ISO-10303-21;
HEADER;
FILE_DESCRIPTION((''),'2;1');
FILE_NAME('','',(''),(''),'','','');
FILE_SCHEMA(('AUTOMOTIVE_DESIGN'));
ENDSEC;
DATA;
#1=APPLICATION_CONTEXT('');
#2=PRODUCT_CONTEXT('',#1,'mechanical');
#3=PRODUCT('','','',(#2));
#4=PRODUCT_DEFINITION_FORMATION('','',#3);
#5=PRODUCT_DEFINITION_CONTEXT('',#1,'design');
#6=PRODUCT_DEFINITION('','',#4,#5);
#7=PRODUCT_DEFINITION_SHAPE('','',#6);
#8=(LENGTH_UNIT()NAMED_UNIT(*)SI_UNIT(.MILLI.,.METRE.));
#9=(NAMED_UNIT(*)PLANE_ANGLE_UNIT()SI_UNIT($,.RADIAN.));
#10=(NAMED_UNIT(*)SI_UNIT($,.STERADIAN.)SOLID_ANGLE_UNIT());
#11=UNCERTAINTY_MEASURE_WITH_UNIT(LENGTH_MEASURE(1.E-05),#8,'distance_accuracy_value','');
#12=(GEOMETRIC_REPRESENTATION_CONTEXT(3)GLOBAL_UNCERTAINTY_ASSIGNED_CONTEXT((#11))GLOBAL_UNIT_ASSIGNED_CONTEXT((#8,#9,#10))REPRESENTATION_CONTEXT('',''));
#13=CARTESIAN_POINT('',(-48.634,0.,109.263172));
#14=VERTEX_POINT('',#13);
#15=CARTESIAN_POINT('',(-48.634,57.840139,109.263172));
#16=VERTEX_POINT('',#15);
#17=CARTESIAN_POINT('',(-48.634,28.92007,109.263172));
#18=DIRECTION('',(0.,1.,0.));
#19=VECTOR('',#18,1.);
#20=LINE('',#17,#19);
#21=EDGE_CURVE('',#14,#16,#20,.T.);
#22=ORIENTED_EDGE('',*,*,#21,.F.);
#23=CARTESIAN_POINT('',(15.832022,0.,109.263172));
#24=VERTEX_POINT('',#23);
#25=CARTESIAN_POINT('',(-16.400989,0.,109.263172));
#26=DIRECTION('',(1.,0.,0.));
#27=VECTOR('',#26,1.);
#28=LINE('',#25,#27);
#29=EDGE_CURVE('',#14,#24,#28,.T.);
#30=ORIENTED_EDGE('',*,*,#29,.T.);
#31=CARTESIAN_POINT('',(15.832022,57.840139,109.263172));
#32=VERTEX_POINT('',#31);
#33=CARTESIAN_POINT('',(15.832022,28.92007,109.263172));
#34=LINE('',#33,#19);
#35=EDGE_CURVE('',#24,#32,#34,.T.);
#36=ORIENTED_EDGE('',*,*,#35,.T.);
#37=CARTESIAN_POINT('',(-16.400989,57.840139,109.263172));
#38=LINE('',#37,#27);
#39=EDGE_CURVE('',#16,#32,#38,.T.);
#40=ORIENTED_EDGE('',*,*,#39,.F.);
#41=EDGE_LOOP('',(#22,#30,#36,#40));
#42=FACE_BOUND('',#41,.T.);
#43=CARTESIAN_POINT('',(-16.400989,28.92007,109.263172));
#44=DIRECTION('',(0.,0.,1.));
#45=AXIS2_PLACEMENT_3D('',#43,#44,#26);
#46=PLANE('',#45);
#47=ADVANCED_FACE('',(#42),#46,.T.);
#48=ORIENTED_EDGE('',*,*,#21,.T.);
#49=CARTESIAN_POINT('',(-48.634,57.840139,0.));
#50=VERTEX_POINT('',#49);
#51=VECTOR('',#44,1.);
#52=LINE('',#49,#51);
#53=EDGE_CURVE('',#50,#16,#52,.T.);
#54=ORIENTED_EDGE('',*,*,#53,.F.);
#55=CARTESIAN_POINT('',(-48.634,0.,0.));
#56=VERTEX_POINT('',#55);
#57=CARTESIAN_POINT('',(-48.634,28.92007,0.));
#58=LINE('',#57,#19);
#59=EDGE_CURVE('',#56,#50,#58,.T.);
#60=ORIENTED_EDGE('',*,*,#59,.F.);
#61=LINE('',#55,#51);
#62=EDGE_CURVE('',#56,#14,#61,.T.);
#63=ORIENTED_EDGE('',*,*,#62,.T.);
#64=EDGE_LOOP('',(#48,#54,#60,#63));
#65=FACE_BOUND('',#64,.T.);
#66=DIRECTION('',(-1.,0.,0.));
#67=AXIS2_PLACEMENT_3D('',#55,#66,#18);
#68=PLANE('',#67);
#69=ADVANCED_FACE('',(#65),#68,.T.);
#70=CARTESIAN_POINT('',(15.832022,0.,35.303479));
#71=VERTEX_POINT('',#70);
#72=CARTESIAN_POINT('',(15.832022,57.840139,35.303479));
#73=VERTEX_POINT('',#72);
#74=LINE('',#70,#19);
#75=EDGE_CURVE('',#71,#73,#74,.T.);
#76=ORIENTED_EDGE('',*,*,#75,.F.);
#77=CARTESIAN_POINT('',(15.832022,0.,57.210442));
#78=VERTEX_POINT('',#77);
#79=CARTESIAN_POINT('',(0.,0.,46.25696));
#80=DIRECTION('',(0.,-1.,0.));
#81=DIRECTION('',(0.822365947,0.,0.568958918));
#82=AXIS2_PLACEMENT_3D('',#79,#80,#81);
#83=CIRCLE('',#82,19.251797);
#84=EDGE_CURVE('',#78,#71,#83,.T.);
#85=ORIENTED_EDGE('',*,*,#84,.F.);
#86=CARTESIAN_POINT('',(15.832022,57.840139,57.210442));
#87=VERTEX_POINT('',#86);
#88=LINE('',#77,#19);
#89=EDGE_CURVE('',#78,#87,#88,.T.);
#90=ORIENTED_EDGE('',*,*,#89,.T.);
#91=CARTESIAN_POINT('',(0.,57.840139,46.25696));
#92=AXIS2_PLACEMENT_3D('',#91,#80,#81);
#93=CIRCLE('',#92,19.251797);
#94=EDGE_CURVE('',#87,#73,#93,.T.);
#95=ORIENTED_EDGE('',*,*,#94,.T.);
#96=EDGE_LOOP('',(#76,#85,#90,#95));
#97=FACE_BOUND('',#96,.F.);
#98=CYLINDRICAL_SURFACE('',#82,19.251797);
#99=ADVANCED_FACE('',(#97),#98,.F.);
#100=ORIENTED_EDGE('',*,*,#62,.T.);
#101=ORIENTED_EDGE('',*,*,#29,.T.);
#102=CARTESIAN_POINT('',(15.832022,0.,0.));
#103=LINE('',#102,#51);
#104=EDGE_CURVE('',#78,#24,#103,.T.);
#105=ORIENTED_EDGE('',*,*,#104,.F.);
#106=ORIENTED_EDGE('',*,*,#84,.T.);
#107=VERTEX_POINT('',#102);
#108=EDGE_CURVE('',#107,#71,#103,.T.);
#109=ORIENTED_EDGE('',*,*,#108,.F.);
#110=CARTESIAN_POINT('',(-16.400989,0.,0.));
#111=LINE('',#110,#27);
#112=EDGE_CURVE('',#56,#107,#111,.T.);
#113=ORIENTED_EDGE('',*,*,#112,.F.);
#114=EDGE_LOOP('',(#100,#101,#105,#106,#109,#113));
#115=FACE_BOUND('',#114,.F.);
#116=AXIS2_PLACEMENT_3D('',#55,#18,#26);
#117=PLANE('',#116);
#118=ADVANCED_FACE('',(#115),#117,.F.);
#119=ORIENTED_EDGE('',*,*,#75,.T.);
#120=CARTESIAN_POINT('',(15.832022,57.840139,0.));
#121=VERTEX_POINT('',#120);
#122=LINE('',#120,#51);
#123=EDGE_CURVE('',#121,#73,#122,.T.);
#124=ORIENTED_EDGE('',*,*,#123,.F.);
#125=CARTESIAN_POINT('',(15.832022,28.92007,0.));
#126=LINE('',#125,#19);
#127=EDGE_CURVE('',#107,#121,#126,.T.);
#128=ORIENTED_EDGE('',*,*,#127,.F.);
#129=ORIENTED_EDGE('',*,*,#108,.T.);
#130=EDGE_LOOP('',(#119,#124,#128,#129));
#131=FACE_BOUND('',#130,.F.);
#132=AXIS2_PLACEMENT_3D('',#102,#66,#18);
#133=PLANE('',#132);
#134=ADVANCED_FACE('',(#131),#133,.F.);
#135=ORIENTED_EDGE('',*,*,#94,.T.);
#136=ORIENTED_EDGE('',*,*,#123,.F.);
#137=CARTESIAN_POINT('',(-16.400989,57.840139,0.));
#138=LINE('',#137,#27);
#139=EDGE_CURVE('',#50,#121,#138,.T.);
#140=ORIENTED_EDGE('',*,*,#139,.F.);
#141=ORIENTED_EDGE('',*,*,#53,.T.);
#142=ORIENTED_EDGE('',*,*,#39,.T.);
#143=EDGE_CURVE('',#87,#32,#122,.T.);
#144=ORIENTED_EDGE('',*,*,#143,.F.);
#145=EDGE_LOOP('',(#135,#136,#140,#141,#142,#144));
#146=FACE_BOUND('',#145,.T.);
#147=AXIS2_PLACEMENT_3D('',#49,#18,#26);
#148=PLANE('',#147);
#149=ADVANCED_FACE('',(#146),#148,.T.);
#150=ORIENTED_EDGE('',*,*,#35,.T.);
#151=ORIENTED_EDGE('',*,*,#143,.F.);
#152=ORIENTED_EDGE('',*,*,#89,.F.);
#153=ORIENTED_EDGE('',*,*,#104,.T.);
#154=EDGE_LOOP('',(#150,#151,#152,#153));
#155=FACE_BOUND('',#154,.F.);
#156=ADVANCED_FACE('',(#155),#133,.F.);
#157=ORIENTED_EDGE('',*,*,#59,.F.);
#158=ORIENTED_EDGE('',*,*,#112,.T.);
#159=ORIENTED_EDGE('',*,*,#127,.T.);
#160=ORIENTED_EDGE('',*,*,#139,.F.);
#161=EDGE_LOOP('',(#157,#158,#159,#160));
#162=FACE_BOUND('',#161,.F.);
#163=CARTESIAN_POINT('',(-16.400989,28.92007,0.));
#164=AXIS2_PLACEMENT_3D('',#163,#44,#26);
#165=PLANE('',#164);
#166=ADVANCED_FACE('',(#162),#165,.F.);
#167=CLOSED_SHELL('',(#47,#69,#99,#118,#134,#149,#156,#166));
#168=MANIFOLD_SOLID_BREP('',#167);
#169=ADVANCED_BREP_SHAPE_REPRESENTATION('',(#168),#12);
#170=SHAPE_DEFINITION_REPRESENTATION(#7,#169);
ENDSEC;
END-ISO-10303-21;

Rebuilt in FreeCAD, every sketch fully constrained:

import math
import FreeCAD as App
import Part
import Sketcher
from FreeCAD import Vector
Q = App.Units.Quantity


def add_polygon(sketch, points):
    """Adds a closed chain of lines whose ends are joined by coincident constraints."""
    first, n = sketch.GeometryCount, len(points)
    for a, b in zip(points, points[1:] + points[:1]):
        sketch.addGeometry(Part.LineSegment(App.Vector(*a, 0), App.Vector(*b, 0)), False)
    for i in range(n):
        sketch.addConstraint(Sketcher.Constraint("Coincident", first + i, 2, first + (i + 1) % n, 1))

doc = App.newDocument("Part")
body = doc.addObject("PartDesign::Body", "Body")

# Sketch on XY plane
sketch1 = body.newObject("Sketcher::SketchObject", "Sketch")
sketch1.AttachmentSupport = (doc.getObject("XY_Plane"), [""])
sketch1.MapMode = "FlatFace"
add_polygon(sketch1, [(-49, 58), (-49, 0), (16, 0), (16, 58)])  # lines 0-3
sketch1.addConstraint([
    Sketcher.Constraint("Vertical", 0),
    Sketcher.Constraint("Horizontal", 1),
    Sketcher.Constraint("Vertical", 2),
    Sketcher.Constraint("Horizontal", 3),
    Sketcher.Constraint("PointOnObject", 0, 2, -1),
    Sketcher.Constraint("DistanceX", 1, 1, 1, 2, Q("64.466022 mm")),
    Sketcher.Constraint("DistanceY", 0, 2, 0, 1, Q("57.840139 mm")),
    Sketcher.Constraint("DistanceX", 0, 2, -1, 1, Q("48.634 mm")),
])
pad1 = body.newObject("PartDesign::Pad", "Pad")
pad1.Profile = sketch1
pad1.Length = 109.263172

# Sketch on XZ plane
sketch2 = body.newObject("Sketcher::SketchObject", "Sketch001")
sketch2.AttachmentSupport = (doc.getObject("XZ_Plane"), [""])
sketch2.MapMode = "FlatFace"
sketch2.addGeometry([
    Part.ArcOfCircle(Part.Circle(Vector(0, 46, 0), Vector(0, 0, 1), 19), math.radians(-35), math.radians(0)),
    Part.ArcOfCircle(Part.Circle(Vector(0, 46, 0), Vector(0, 0, 1), 19), math.radians(0), math.radians(35)),
    Part.LineSegment(Vector(16, 57, 0), Vector(16, 35, 0)),
], False)
sketch2.addConstraint([
    Sketcher.Constraint("Tangent", 0, 2, 1, 1),
    Sketcher.Constraint("Coincident", 1, 2, 2, 1),
    Sketcher.Constraint("Coincident", 2, 2, 0, 1),
    Sketcher.Constraint("Vertical", 2),
    Sketcher.Constraint("PointOnObject", 0, 3, -2),
    Sketcher.Constraint("Horizontal", 1, 3, 0, 2),
    Sketcher.Constraint("Radius", 0, Q("19.251799 mm")),
    Sketcher.Constraint("Radius", 1, Q("19.251792 mm")),
    Sketcher.Constraint("DistanceY", 2, 2, 2, 1, Q("21.906963 mm")),
    Sketcher.Constraint("DistanceY", -1, 1, 0, 3, Q("46.256961 mm")),
])
pocket1 = body.newObject("PartDesign::Pocket", "Pocket")
pocket1.Profile = sketch2
pocket1.Length = Q("1 in")

# Sketch on XZ plane
sketch3 = body.newObject("Sketcher::SketchObject", "Sketch002")
sketch3.AttachmentSupport = (doc.getObject("XZ_Plane"), [""])
sketch3.MapMode = "FlatFace"
sketch3.addGeometry([
    Part.ArcOfCircle(Part.Circle(Vector(0, 46, 0), Vector(0, 0, 1), 19), math.radians(35), math.radians(325)),
    Part.LineSegment(Vector(16, 35, 0), Vector(16, 57, 0)),
], False)
sketch3.addConstraint([
    Sketcher.Constraint("Coincident", 0, 1, 1, 2),
    Sketcher.Constraint("Coincident", 1, 1, 0, 2),
    Sketcher.Constraint("Vertical", 1),
    Sketcher.Constraint("PointOnObject", 0, 3, -2),
    Sketcher.Constraint("Radius", 0, Q("19.251797 mm")),
    Sketcher.Constraint("DistanceY", 1, 1, 1, 2, Q("21.906963 mm")),
    Sketcher.Constraint("DistanceY", -1, 1, 0, 3, Q("46.25696 mm")),
])
pocket2 = body.newObject("PartDesign::Pocket", "Pocket001")
pocket2.Profile = sketch3
pocket2.Length = 80.09805

doc.recompute()
